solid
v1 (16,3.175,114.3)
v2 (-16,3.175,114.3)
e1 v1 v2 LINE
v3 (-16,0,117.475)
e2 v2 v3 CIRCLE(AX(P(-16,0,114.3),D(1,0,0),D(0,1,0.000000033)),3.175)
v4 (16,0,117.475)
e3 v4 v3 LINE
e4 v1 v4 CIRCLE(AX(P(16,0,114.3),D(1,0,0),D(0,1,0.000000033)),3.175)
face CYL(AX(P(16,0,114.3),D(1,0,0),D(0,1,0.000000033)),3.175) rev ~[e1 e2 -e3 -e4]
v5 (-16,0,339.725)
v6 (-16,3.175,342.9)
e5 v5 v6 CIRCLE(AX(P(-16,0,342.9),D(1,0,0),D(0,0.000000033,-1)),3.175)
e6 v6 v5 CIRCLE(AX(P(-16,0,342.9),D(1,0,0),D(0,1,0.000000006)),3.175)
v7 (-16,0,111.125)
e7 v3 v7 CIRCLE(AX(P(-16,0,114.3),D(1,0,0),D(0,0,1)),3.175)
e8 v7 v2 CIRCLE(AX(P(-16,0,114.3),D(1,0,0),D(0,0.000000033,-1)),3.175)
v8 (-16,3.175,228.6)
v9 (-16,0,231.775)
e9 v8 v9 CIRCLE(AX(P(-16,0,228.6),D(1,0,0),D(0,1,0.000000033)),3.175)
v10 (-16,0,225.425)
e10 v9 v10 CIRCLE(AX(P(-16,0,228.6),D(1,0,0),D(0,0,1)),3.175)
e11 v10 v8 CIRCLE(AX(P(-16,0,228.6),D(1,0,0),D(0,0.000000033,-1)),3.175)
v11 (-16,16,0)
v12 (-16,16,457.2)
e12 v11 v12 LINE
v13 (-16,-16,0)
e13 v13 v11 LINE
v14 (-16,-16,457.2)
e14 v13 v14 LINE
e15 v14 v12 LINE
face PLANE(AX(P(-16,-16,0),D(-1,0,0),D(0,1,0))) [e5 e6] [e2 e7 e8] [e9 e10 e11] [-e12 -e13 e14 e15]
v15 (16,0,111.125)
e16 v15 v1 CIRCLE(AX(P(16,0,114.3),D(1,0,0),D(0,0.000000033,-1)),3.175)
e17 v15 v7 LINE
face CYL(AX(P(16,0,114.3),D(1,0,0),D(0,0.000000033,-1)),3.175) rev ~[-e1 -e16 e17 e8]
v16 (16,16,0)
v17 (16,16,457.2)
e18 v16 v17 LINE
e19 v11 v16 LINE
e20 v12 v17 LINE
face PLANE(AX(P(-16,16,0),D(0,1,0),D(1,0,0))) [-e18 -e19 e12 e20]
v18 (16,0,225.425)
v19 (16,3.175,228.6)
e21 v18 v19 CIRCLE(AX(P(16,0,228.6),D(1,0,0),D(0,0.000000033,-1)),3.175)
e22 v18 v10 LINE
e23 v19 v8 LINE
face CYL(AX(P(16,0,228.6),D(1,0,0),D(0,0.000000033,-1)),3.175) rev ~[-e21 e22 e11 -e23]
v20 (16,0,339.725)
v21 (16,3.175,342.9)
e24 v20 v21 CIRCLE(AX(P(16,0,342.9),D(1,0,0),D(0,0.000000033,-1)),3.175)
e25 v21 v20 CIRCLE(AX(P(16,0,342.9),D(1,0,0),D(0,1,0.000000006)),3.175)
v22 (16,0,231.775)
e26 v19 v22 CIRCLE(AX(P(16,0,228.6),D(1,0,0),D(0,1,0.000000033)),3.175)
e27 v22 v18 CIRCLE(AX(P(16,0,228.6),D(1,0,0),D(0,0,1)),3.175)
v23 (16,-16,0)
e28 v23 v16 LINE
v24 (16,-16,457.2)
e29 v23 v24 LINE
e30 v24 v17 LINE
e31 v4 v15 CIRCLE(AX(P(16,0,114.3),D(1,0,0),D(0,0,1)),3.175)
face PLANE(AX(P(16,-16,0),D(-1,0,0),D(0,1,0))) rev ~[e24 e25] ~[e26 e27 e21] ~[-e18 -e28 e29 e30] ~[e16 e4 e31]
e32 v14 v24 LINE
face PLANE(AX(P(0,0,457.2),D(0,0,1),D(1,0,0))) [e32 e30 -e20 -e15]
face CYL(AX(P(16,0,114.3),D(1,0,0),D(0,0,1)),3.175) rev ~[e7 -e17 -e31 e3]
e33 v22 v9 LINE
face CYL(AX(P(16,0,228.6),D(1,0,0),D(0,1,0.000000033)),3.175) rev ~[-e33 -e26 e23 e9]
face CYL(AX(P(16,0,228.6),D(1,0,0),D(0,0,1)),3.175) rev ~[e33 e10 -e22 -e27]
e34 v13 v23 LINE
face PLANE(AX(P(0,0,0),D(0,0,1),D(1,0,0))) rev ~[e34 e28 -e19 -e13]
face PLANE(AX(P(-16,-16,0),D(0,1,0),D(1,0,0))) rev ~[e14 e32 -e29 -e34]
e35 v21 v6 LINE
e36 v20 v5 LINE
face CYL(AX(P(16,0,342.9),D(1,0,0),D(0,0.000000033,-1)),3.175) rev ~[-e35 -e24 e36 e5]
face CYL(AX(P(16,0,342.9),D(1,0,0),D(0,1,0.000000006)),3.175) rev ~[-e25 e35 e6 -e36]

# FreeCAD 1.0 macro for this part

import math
import FreeCAD as App
import Part
import Sketcher
Q = App.Units.Quantity

doc = App.newDocument("Part")
body = doc.addObject("PartDesign::Body", "Body")

sketch1 = body.newObject("Sketcher::SketchObject", "Sketch")
sketch1.AttachmentSupport = (doc.getObject("XY_Plane"), [""])
sketch1.MapMode = "FlatFace"
sketch1.addGeometry([
    Part.LineSegment(App.Vector(-16, 16, 0), App.Vector(-16, -16, 0)),
    Part.LineSegment(App.Vector(-16, -16, 0), App.Vector(16, -16, 0)),
    Part.LineSegment(App.Vector(16, -16, 0), App.Vector(16, 16, 0)),
    Part.LineSegment(App.Vector(16, 16, 0), App.Vector(-16, 16, 0)),
], False)
sketch1.addConstraint([
    Sketcher.Constraint("Coincident", 0, 2, 1, 1),
    Sketcher.Constraint("Coincident", 1, 2, 2, 1),
    Sketcher.Constraint("Coincident", 2, 2, 3, 1),
    Sketcher.Constraint("Coincident", 3, 2, 0, 1),
    Sketcher.Constraint("Vertical", 0),
    Sketcher.Constraint("Horizontal", 1),
    Sketcher.Constraint("Vertical", 2),
    Sketcher.Constraint("Horizontal", 3),
    Sketcher.Constraint("Symmetric", 0, 2, 2, 2, -1, 1),
    Sketcher.Constraint("Equal", 3, 0),
    Sketcher.Constraint("DistanceX", 1, 1, 1, 2, Q("32 mm")),
])
pad1 = body.newObject("PartDesign::Pad", "Pad")
pad1.Profile = sketch1
pad1.Length = Q("18 in")

sketch2 = body.newObject("Sketcher::SketchObject", "Sketch001")
sketch2.AttachmentSupport = (doc.getObject("YZ_Plane"), [""])
sketch2.MapMode = "FlatFace"
sketch2.AttachmentOffset = App.Placement(App.Vector(0, 0, 16), App.Rotation())
sketch2.addGeometry([
    Part.ArcOfCircle(Part.Circle(App.Vector(0, 114.3, 0), App.Vector(0, 0, 1), 3.2), math.radians(90), math.radians(270)),
    Part.ArcOfCircle(Part.Circle(App.Vector(0, 114.3, 0), App.Vector(0, 0, 1), 3.2), math.radians(-90), math.radians(0)),
    Part.ArcOfCircle(Part.Circle(App.Vector(0, 114.3, 0), App.Vector(0, 0, 1), 3.2), math.radians(0), math.radians(90)),
    Part.ArcOfCircle(Part.Circle(App.Vector(0, 342.9, 0), App.Vector(0, 0, 1), 3.2), math.radians(0), math.radians(270)),
    Part.ArcOfCircle(Part.Circle(App.Vector(0, 342.9, 0), App.Vector(0, 0, 1), 3.2), math.radians(-90), math.radians(0)),
    Part.ArcOfCircle(Part.Circle(App.Vector(0, 228.6, 0), App.Vector(0, 0, 1), 3.2), math.radians(90), math.radians(270)),
    Part.ArcOfCircle(Part.Circle(App.Vector(0, 228.6, 0), App.Vector(0, 0, 1), 3.2), math.radians(-90), math.radians(0)),
    Part.ArcOfCircle(Part.Circle(App.Vector(0, 228.6, 0), App.Vector(0, 0, 1), 3.2), math.radians(0), math.radians(90)),
], False)
sketch2.addConstraint([
    Sketcher.Constraint("Tangent", 0, 2, 1, 1),
    Sketcher.Constraint("Tangent", 1, 2, 2, 1),
    Sketcher.Constraint("Tangent", 2, 2, 0, 1),
    Sketcher.Constraint("Tangent", 3, 1, 4, 2),
    Sketcher.Constraint("Coincident", 4, 1, 3, 2),
    Sketcher.Constraint("Tangent", 5, 2, 6, 1),
    Sketcher.Constraint("Tangent", 6, 2, 7, 1),
    Sketcher.Constraint("Tangent", 7, 2, 5, 1),
    Sketcher.Constraint("Equal", 2, 3),
    Sketcher.Constraint("Equal", 4, 5),
    Sketcher.Constraint("PointOnObject", 0, 3, -2),
    Sketcher.Constraint("PointOnObject", 3, 3, -2),
    Sketcher.Constraint("PointOnObject", 5, 3, -2),
    Sketcher.Constraint("PointOnObject", 0, 2, -2),
    Sketcher.Constraint("PointOnObject", 2, 2, -2),
    Sketcher.Constraint("PointOnObject", 4, 1, -2),
    Sketcher.Constraint("PointOnObject", 5, 2, -2),
    Sketcher.Constraint("PointOnObject", 7, 2, -2),
    Sketcher.Constraint("Horizontal", 2, 3, 1, 2),
    Sketcher.Constraint("Horizontal", 4, 3, 3, 1),
    Sketcher.Constraint("Horizontal", 7, 3, 6, 2),
    Sketcher.Constraint("DistanceY", -1, 1, 5, 3, Q("9 in")),
    Sketcher.Constraint("Radius", 0, Q("0.125 in")),
    Sketcher.Constraint("DistanceY", 1, 3, 3, 3, Q("9 in")),
    Sketcher.Constraint("DistanceY", -1, 1, 0, 3, Q("4.5 in")),
])
pocket1 = body.newObject("PartDesign::Pocket", "Pocket")
pocket1.Profile = sketch2
pocket1.Type = "ThroughAll"

doc.recompute()
